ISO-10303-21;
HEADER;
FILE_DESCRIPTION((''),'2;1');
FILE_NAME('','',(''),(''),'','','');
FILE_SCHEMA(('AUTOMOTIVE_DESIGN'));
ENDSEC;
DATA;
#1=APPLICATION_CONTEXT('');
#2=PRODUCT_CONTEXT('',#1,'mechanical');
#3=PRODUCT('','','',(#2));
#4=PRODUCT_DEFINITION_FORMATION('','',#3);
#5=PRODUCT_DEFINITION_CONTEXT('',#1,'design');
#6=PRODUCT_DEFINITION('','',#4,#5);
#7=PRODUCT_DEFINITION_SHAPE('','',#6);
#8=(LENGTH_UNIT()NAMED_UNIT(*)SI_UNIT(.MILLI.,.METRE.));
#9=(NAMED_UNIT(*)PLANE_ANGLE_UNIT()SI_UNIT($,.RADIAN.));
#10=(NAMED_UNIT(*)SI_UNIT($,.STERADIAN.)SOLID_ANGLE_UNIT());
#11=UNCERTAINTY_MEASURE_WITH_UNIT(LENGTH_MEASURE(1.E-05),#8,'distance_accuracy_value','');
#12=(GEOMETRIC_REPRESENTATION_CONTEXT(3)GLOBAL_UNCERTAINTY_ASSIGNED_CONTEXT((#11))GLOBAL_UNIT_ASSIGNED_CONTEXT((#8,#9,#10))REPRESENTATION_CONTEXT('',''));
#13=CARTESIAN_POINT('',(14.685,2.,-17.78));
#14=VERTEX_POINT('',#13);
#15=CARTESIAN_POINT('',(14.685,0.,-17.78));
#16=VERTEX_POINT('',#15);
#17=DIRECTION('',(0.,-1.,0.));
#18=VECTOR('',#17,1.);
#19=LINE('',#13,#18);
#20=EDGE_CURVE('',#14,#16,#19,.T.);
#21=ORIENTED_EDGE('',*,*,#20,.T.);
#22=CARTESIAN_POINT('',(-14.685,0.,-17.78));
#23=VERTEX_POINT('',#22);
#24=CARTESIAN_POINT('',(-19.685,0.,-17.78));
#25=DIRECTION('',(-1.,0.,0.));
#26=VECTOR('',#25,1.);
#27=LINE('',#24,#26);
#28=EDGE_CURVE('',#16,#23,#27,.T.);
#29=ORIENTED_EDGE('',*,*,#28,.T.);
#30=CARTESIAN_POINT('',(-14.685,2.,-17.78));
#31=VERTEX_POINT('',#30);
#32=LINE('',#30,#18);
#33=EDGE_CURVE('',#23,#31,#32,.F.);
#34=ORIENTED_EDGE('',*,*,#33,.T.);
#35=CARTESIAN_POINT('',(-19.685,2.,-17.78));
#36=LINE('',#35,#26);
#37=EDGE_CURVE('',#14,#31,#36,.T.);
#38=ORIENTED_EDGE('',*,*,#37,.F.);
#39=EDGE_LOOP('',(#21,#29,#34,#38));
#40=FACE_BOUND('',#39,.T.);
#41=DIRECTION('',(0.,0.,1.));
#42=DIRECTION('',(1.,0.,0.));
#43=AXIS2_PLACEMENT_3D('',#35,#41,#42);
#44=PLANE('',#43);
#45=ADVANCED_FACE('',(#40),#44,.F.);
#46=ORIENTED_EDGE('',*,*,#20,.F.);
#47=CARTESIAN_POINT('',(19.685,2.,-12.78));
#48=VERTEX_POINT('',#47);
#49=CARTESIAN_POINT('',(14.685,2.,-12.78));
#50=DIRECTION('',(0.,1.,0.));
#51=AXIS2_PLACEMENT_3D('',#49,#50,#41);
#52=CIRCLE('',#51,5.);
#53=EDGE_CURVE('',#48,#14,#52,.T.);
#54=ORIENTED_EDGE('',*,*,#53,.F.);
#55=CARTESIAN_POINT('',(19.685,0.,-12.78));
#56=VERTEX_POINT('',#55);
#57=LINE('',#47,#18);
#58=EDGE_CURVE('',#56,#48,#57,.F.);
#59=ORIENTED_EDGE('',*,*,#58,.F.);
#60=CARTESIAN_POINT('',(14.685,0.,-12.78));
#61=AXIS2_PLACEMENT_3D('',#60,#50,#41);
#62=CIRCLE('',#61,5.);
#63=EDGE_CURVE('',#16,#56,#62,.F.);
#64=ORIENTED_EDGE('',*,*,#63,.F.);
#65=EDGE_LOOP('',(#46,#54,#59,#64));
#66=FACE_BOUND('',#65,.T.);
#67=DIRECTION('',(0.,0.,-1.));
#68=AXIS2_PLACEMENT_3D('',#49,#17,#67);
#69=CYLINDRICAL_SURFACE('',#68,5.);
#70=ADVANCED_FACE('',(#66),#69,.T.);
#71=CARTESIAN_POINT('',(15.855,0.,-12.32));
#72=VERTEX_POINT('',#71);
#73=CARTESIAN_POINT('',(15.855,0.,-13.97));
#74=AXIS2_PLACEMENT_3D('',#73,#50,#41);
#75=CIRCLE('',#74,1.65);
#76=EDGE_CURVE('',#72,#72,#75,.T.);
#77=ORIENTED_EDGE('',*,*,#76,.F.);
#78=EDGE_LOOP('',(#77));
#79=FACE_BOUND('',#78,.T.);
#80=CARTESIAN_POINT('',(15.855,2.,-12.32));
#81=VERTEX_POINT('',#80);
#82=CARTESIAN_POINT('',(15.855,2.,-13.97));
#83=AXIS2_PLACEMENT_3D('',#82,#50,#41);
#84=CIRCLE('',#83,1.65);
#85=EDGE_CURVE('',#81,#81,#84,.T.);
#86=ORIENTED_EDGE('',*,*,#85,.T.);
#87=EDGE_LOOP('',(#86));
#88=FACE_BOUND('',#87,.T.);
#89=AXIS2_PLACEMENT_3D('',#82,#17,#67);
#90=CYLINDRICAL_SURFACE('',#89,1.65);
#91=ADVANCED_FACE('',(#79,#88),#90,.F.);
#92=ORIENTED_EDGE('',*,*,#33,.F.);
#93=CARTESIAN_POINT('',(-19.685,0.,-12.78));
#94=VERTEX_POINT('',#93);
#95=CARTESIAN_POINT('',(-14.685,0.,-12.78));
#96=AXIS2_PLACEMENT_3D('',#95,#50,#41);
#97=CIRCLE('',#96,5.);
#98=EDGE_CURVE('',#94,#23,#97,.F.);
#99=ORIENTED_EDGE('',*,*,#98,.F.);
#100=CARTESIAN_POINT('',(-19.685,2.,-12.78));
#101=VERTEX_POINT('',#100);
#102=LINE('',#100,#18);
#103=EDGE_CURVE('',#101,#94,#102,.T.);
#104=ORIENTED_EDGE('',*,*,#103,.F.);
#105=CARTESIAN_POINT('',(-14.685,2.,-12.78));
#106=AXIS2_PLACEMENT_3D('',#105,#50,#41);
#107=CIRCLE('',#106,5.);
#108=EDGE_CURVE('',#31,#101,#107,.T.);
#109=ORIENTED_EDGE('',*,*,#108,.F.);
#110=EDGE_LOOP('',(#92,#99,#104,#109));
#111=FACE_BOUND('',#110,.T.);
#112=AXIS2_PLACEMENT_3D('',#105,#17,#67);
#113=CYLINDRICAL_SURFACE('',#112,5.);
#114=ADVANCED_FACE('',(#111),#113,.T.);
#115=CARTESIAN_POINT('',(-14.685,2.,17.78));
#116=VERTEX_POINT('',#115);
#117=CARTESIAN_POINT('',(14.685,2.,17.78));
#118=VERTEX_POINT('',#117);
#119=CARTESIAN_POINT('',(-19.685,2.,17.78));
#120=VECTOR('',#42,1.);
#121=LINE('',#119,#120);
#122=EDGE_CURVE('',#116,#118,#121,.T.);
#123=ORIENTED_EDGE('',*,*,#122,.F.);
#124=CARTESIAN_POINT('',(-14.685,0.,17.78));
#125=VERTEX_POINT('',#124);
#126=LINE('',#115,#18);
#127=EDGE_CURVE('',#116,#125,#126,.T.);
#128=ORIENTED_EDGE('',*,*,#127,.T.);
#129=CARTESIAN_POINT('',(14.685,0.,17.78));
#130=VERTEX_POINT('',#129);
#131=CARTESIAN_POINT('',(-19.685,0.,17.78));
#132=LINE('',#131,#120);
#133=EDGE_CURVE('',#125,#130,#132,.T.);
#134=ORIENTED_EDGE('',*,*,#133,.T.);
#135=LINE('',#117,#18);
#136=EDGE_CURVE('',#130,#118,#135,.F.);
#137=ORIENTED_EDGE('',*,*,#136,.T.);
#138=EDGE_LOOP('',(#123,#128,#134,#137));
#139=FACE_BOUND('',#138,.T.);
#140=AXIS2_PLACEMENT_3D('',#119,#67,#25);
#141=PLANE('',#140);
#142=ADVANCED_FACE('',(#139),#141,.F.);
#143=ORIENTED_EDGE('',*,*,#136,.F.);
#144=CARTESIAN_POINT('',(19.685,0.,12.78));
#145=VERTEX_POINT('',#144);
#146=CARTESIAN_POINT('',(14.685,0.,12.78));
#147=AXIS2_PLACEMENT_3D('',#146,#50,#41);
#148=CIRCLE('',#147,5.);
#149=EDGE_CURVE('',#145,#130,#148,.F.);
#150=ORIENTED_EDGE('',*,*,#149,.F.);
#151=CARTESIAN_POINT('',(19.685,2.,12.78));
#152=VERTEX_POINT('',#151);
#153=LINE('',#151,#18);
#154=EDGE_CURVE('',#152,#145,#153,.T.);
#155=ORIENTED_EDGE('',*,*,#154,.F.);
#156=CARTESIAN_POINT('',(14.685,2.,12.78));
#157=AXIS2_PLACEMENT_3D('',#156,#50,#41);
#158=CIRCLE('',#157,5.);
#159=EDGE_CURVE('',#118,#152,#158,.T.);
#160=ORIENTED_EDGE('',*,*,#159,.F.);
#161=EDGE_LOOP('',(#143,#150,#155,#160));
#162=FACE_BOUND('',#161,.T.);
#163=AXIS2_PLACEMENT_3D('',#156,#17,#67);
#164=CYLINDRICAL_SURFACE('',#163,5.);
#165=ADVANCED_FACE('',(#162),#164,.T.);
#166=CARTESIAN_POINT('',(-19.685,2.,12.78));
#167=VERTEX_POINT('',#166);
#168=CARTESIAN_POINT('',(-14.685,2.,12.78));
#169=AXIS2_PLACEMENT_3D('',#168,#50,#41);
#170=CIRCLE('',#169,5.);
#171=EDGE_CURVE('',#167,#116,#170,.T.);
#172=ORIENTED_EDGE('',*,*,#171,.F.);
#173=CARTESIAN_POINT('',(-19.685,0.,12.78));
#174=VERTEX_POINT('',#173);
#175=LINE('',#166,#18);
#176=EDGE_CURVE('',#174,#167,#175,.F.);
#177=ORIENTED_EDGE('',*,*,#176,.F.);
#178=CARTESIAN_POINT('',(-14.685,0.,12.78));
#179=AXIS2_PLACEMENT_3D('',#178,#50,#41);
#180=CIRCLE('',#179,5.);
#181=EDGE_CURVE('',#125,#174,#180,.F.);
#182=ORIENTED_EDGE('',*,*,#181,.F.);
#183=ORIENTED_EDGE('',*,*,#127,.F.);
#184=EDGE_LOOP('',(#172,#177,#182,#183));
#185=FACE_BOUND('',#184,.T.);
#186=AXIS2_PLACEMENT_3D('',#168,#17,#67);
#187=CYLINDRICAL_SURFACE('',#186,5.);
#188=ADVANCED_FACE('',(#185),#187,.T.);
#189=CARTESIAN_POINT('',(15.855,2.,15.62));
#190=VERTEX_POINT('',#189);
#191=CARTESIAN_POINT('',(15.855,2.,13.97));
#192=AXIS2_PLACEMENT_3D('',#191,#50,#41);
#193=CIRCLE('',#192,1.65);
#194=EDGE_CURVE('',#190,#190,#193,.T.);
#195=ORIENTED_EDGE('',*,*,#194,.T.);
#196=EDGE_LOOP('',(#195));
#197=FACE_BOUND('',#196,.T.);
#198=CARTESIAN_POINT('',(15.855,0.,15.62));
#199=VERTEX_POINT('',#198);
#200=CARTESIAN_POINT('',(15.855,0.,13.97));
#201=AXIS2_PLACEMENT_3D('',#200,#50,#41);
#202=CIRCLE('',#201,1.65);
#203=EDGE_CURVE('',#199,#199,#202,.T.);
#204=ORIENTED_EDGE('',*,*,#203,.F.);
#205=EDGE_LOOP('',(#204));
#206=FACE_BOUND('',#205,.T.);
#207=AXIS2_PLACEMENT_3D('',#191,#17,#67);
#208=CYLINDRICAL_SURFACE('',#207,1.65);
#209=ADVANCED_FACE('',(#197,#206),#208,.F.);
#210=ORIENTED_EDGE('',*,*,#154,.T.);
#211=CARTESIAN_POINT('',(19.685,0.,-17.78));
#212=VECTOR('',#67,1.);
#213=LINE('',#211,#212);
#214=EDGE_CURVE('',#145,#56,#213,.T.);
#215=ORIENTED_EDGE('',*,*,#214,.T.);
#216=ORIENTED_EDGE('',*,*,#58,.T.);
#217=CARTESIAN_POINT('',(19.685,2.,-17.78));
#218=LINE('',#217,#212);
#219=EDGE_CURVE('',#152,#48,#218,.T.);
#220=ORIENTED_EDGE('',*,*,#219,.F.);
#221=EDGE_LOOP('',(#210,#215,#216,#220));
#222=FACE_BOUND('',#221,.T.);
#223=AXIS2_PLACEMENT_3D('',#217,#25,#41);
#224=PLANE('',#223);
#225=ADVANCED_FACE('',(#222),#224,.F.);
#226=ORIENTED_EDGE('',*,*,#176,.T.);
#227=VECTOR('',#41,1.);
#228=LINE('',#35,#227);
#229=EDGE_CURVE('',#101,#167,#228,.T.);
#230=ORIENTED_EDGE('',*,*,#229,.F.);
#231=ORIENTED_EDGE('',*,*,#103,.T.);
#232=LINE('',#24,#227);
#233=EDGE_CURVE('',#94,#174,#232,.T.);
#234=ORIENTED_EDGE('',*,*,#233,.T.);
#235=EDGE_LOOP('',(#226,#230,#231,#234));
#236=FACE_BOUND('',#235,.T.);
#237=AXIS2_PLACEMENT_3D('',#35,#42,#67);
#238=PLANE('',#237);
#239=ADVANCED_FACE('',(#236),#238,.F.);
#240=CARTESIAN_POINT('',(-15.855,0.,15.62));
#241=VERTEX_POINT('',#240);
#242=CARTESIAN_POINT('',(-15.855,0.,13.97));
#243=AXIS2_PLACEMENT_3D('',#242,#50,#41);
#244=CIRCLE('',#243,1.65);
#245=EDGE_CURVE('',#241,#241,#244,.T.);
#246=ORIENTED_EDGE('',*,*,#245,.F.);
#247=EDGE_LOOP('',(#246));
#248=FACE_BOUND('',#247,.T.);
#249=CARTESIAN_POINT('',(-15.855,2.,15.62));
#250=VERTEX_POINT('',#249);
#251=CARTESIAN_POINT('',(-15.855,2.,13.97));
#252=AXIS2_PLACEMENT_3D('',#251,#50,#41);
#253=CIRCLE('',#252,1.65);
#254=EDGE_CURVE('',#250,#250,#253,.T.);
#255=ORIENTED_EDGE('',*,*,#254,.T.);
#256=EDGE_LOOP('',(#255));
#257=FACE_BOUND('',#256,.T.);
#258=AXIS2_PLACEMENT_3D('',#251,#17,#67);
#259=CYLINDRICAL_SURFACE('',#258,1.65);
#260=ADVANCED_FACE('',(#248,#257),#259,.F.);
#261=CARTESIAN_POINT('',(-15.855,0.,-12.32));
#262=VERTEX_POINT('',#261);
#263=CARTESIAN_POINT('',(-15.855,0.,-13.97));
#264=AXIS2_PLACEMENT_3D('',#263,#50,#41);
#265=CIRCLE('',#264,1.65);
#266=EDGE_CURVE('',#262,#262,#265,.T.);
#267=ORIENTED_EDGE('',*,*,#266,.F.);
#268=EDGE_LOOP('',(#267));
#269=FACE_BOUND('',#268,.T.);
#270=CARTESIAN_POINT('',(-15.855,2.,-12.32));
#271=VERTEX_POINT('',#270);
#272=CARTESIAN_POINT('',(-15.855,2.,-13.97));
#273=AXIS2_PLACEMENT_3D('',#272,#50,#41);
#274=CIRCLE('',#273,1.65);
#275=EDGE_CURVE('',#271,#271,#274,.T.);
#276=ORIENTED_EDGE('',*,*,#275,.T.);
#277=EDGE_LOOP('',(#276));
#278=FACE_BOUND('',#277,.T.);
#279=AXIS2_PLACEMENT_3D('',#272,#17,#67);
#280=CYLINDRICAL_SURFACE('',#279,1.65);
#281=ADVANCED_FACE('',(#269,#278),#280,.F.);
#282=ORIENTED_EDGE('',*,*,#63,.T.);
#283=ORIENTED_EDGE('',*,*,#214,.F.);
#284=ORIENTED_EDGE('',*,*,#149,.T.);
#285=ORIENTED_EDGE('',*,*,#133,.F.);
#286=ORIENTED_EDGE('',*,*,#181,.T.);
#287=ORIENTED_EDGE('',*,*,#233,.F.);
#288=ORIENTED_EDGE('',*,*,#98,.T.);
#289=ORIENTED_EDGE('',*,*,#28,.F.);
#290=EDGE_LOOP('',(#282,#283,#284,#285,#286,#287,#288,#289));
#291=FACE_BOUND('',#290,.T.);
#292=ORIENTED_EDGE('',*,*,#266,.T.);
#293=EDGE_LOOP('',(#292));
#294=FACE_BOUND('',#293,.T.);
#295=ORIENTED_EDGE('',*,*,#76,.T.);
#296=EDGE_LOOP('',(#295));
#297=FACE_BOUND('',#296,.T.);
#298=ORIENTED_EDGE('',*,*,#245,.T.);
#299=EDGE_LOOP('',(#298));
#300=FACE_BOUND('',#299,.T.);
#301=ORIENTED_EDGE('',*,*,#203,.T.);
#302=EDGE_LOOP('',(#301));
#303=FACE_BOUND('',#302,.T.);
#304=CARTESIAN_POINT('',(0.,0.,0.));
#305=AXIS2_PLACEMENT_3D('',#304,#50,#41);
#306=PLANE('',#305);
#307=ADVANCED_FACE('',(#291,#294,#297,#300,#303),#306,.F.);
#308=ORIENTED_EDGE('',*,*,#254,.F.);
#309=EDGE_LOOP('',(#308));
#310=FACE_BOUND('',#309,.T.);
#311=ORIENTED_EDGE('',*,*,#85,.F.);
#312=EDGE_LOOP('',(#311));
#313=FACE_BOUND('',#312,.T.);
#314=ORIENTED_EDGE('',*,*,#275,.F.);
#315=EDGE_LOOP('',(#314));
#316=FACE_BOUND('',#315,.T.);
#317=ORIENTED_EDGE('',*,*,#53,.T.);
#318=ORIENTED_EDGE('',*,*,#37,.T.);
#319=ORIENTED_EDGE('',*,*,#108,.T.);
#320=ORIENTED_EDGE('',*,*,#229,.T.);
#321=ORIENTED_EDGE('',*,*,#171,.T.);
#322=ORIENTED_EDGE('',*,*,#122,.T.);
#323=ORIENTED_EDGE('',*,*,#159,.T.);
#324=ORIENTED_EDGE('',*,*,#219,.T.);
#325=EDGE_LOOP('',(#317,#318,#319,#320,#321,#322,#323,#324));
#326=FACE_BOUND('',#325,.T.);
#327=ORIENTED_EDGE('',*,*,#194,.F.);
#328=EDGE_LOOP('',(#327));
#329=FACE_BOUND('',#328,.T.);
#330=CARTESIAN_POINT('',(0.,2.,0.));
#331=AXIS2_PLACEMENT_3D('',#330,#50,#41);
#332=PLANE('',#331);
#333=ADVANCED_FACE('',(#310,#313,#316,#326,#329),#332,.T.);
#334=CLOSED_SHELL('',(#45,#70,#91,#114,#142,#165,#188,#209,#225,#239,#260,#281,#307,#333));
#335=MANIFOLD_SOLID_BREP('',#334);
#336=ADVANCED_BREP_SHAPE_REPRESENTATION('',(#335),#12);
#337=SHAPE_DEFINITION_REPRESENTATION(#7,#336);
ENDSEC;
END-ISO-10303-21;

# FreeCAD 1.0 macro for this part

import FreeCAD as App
import Part
import Sketcher


def edges_at(feature, points):
    """Names of the edges that pass closest to the given points."""
    edges = feature.Shape.Edges
    near = lambda p: min(range(len(edges)), key=lambda i: edges[i].distToShape(Part.Vertex(*p))[0])
    return sorted({f"Edge{near(p) + 1}" for p in points})

doc = App.newDocument("Part")
body = doc.addObject("PartDesign::Body", "Body")

sketch1 = body.newObject("Sketcher::SketchObject", "Sketch")
sketch1.AttachmentSupport = (doc.getObject("XZ_Plane"), [""])
sketch1.MapMode = "FlatFace"
sketch1.addGeometry([
    Part.LineSegment(App.Vector(-19.7, -17.8, 0), App.Vector(-19.7, 17.8, 0)),
    Part.LineSegment(App.Vector(-19.7, 17.8, 0), App.Vector(19.7, 17.8, 0)),
    Part.LineSegment(App.Vector(19.7, 17.8, 0), App.Vector(19.7, -17.8, 0)),
    Part.LineSegment(App.Vector(19.7, -17.8, 0), App.Vector(-19.7, -17.8, 0)),
    Part.Circle(App.Vector(-15.9, 14, 0), App.Vector(0, 0, 1), 1.6),
    Part.Circle(App.Vector(15.9, 14, 0), App.Vector(0, 0, 1), 1.6),
    Part.Circle(App.Vector(-15.9, -14, 0), App.Vector(0, 0, 1), 1.6),
    Part.Circle(App.Vector(15.9, -14, 0), App.Vector(0, 0, 1), 1.6),
], False)
sketch1.addConstraint([
    Sketcher.Constraint("Coincident", 0, 2, 1, 1),
    Sketcher.Constraint("Coincident", 1, 2, 2, 1),
    Sketcher.Constraint("Coincident", 2, 2, 3, 1),
    Sketcher.Constraint("Coincident", 3, 2, 0, 1),
    Sketcher.Constraint("Vertical", 0),
    Sketcher.Constraint("Horizontal", 1),
    Sketcher.Constraint("Vertical", 2),
    Sketcher.Constraint("Horizontal", 3),
    Sketcher.Constraint("Equal", 4, 5),
    Sketcher.Constraint("Equal", 5, 6),
    Sketcher.Constraint("Equal", 6, 7),
    Sketcher.Constraint("Symmetric", 5, 3, 6, 3, -1, 1),
    Sketcher.Constraint("Symmetric", 4, 3, 7, 3, -1, 1),
    Sketcher.Constraint("Symmetric", 0, 2, 2, 2, -1, 1),
    Sketcher.Constraint("Symmetric", 4, 3, 5, 3, -2),
    Sketcher.Constraint("Diameter", 4, 3.3),
    Sketcher.Constraint("DistanceX", 1, 1, 1, 2, 39.37),
    Sketcher.Constraint("DistanceY", 0, 1, 0, 2, 35.56),
    Sketcher.Constraint("DistanceY", -1, 1, 4, 3, 13.97),
    Sketcher.Constraint("DistanceX", 4, 3, 5, 3, 31.71),
])
pad1 = body.newObject("PartDesign::Pad", "Pad")
pad1.Profile = sketch1
pad1.Length = 2
pad1.Reversed = True
doc.recompute()

fillet = body.newObject("PartDesign::Fillet", "Fillet")
fillet.Base = (pad1, edges_at(pad1, [
    (19.685, 1, 17.78),
    (-19.685, 1, 17.78),
    (-19.685, 1, -17.78),
    (19.685, 1, -17.78),
]))
fillet.Radius = 5

doc.recompute()
